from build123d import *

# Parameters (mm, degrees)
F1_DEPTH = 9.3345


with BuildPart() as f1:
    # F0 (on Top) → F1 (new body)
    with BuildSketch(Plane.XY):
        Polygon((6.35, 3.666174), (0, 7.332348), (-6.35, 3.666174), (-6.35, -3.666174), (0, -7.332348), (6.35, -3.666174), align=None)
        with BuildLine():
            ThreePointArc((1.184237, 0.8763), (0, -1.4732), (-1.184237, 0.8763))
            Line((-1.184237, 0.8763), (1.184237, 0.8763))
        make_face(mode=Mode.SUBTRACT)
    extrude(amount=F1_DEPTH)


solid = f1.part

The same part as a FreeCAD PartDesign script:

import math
import FreeCAD as App
import Part
import Sketcher
Q = App.Units.Quantity


def add_polygon(sketch, points):
    """Adds a closed chain of lines whose ends are joined by coincident constraints."""
    first, n = sketch.GeometryCount, len(points)
    for a, b in zip(points, points[1:] + points[:1]):
        sketch.addGeometry(Part.LineSegment(App.Vector(*a, 0), App.Vector(*b, 0)), False)
    for i in range(n):
        sketch.addConstraint(Sketcher.Constraint("Coincident", first + i, 2, first + (i + 1) % n, 1))

doc = App.newDocument("Part")
body = doc.addObject("PartDesign::Body", "Body")

# Sketch on XY plane
sketch1 = body.newObject("Sketcher::SketchObject", "Sketch")
sketch1.AttachmentSupport = (doc.getObject("XY_Plane"), [""])
sketch1.MapMode = "FlatFace"
add_polygon(sketch1, [(6.3, 3.7), (0, 7.3), (-6.3, 3.7), (-6.3, -3.7), (0, -7.3), (6.3, -3.7)])  # lines 0-5
sketch1.addGeometry(Part.LineSegment(App.Vector(-1.2, 0.9, 0), App.Vector(1.2, 0.9, 0)), False)  # 6
sketch1.addGeometry(Part.ArcOfCircle(Part.Circle(App.Vector(0, 0, 0), App.Vector(0, 0, 1), 1.5), math.radians(143), math.radians(397)), False)  # 7
sketch1.addConstraint(Sketcher.Constraint("Coincident", 6, 1, 7, 1))
sketch1.addConstraint(Sketcher.Constraint("Coincident", 7, 2, 6, 2))
sketch1.addConstraint(Sketcher.Constraint("Vertical", 2))
sketch1.addConstraint(Sketcher.Constraint("Vertical", 5))
sketch1.addConstraint(Sketcher.Constraint("Horizontal", 6))
sketch1.addConstraint(Sketcher.Constraint("Coincident", 7, 3, -1, 1))
sketch1.addConstraint(Sketcher.Constraint("Symmetric", 0, 2, 3, 2, -1, 1))
sketch1.addConstraint(Sketcher.Constraint("Symmetric", 1, 2, 4, 2, -1, 1))
sketch1.addConstraint(Sketcher.Constraint("PointOnObject", 0, 2, -2))
sketch1.addConstraint(Sketcher.Constraint("Parallel", 0, 3))
sketch1.addConstraint(Sketcher.Constraint("Horizontal", 2, 2, 4, 2))
sketch1.addConstraint(Sketcher.Constraint("Angle", 0, Q("150.000001 deg")))
sketch1.addConstraint(Sketcher.Constraint("Radius", 7, Q("0.058 in")))
sketch1.addConstraint(Sketcher.Constraint("DistanceX", 2, 2, 4, 2, Q("0.5 in")))
sketch1.addConstraint(Sketcher.Constraint("DistanceY", -1, 1, 6, 1, Q("0.0345 in")))
sketch1.addConstraint(Sketcher.Constraint("DistanceY", 2, 2, 2, 1, Q("7.332348 mm")))
pad1 = body.newObject("PartDesign::Pad", "Pad")
pad1.Profile = sketch1
pad1.Length = Q("0.3675 in")

doc.recompute()
